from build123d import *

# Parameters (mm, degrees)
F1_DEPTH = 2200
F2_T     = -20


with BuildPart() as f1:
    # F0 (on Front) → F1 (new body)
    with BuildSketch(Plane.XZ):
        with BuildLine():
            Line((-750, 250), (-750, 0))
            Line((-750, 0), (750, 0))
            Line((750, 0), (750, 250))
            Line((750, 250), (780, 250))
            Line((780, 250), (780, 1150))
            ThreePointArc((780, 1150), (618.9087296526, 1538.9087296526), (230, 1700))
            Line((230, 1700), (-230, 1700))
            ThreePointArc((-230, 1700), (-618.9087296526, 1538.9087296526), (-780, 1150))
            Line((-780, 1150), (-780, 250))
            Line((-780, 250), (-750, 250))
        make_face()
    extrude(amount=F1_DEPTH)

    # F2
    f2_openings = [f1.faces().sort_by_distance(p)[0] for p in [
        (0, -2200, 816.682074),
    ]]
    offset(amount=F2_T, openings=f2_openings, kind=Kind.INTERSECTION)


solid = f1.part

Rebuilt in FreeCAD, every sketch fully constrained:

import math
import FreeCAD as App
import Part
import Sketcher
Q = App.Units.Quantity


def faces_at(feature, points):
    """Names of the faces that lie closest to the given points."""
    faces = feature.Shape.Faces
    near = lambda p: min(range(len(faces)), key=lambda i: faces[i].distToShape(Part.Vertex(*p))[0])
    return sorted({f"Face{near(p) + 1}" for p in points})

doc = App.newDocument("Part")
body = doc.addObject("PartDesign::Body", "Body")

# Sketch on XZ plane
sketch1 = body.newObject("Sketcher::SketchObject", "Sketch")
sketch1.AttachmentSupport = (doc.getObject("XZ_Plane"), [""])
sketch1.MapMode = "FlatFace"
sketch1.addGeometry([
    Part.LineSegment(App.Vector(-750, 250, 0), App.Vector(-750, 0, 0)),  # 0
    Part.LineSegment(App.Vector(-750, 0, 0), App.Vector(750, 0, 0)),  # 1
    Part.LineSegment(App.Vector(750, 0, 0), App.Vector(750, 250, 0)),  # 2
    Part.LineSegment(App.Vector(750, 250, 0), App.Vector(780, 250, 0)),  # 3
    Part.LineSegment(App.Vector(780, 250, 0), App.Vector(780, 1150, 0)),  # 4
    Part.ArcOfCircle(Part.Circle(App.Vector(230, 1150, 0), App.Vector(0, 0, 1), 550), math.radians(0), math.radians(90)),  # 5
    Part.LineSegment(App.Vector(230, 1700, 0), App.Vector(-230, 1700, 0)),  # 6
    Part.ArcOfCircle(Part.Circle(App.Vector(-230, 1150, 0), App.Vector(0, 0, 1), 550), math.radians(90), math.radians(180)),  # 7
    Part.LineSegment(App.Vector(-780, 1150, 0), App.Vector(-780, 250, 0)),  # 8
    Part.LineSegment(App.Vector(-780, 250, 0), App.Vector(-750, 250, 0)),  # 9
], False)
sketch1.addConstraint([
    Sketcher.Constraint("Coincident", 0, 2, 1, 1),
    Sketcher.Constraint("Coincident", 1, 2, 2, 1),
    Sketcher.Constraint("Coincident", 2, 2, 3, 1),
    Sketcher.Constraint("Coincident", 3, 2, 4, 1),
    Sketcher.Constraint("Tangent", 4, 2, 5, 1),
    Sketcher.Constraint("Tangent", 5, 2, 6, 1),
    Sketcher.Constraint("Tangent", 6, 2, 7, 1),
    Sketcher.Constraint("Tangent", 7, 2, 8, 1),
    Sketcher.Constraint("Coincident", 8, 2, 9, 1),
    Sketcher.Constraint("Coincident", 9, 2, 0, 1),
    Sketcher.Constraint("Vertical", 0),
    Sketcher.Constraint("Horizontal", 1),
    Sketcher.Constraint("Vertical", 2),
    Sketcher.Constraint("Horizontal", 3),
    Sketcher.Constraint("Vertical", 4),
    Sketcher.Constraint("Horizontal", 6),
    Sketcher.Constraint("Vertical", 8),
    Sketcher.Constraint("Horizontal", 9),
    Sketcher.Constraint("Equal", 5, 7),
    Sketcher.Constraint("Symmetric", 0, 2, 1, 2, -1, 1),
    Sketcher.Constraint("Symmetric", 3, 2, 8, 2, -2),
    Sketcher.Constraint("Radius", 5, Q("550 mm")),
    Sketcher.Constraint("DistanceX", 1, 1, 1, 2, Q("1500 mm")),
    Sketcher.Constraint("DistanceX", 3, 1, 3, 2, Q("30 mm")),
    Sketcher.Constraint("DistanceY", 0, 2, 0, 1, Q("250 mm")),
    Sketcher.Constraint("DistanceY", 4, 1, 4, 2, Q("900 mm")),
])
pad1 = body.newObject("PartDesign::Pad", "Pad")
pad1.Profile = sketch1
pad1.Length = 2200
doc.recompute()

thickness = body.newObject("PartDesign::Thickness", "Thickness")
thickness.Base = (pad1, faces_at(pad1, [(0, -2200, 850)]))
thickness.Value = 20
thickness.Reversed = True
thickness.Join = "Intersection"

doc.recompute()
